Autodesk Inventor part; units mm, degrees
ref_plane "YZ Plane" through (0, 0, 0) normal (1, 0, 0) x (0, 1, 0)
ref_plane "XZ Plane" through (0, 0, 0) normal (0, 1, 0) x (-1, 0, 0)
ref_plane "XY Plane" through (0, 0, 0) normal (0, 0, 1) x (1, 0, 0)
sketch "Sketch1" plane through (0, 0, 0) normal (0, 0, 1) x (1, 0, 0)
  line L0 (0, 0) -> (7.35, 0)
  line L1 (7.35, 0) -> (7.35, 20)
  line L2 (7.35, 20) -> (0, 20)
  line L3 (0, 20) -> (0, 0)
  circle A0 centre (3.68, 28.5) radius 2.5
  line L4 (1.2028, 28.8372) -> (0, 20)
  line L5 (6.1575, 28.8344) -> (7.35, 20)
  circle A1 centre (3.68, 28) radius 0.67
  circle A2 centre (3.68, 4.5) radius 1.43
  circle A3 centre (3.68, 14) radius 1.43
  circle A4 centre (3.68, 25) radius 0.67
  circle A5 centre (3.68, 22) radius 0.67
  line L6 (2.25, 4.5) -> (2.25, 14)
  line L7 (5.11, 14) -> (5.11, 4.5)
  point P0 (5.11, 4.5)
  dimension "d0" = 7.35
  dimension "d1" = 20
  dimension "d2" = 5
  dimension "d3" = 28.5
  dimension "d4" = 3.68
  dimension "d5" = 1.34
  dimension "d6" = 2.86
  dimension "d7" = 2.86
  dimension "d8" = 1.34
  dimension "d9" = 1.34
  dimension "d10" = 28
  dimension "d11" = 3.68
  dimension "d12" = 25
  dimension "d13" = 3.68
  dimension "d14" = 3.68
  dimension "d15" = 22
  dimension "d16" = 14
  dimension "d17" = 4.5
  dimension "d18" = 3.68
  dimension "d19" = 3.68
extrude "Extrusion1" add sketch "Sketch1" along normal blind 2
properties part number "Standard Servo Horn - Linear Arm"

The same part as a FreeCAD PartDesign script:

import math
import FreeCAD as App
import Part
import Sketcher
from FreeCAD import Vector

doc = App.newDocument("Part")
body = doc.addObject("PartDesign::Body", "Body")

# Sketch on XY plane
sketch1 = doc.addObject("Sketcher::SketchObject", "Sketch")
body.addObject(sketch1)
sketch1.AttachmentSupport = (doc.XY_Plane, [""])
sketch1.MapMode = "FlatFace"
sketch1.addGeometry(Part.LineSegment(Vector(0, 20, 0), Vector(0, 0, 0)), False)
sketch1.addGeometry(Part.LineSegment(Vector(0, 0, 0), Vector(7.3, 0, 0)), False)
sketch1.addGeometry(Part.LineSegment(Vector(7.3, 0, 0), Vector(7.3, 20, 0)), False)
sketch1.addGeometry(Part.LineSegment(Vector(7.3, 20, 0), Vector(6.2, 28.8, 0)), False)
sketch1.addGeometry(Part.ArcOfCircle(Part.Circle(Vector(3.7, 28.5, 0), Vector(0, 0, 1), 2.5), math.radians(8), math.radians(172)), False)
sketch1.addGeometry(Part.LineSegment(Vector(1.2, 28.8, 0), Vector(0, 20, 0)), False)
sketch1.addGeometry(Part.LineSegment(Vector(5.1, 14, 0), Vector(5.1, 4.5, 0)), False)
sketch1.addGeometry(Part.ArcOfCircle(Part.Circle(Vector(3.7, 4.5, 0), Vector(0, 0, 1), 1.4), math.radians(180), math.radians(360)), False)
sketch1.addGeometry(Part.LineSegment(Vector(2.2, 4.5, 0), Vector(2.2, 14, 0)), False)
sketch1.addGeometry(Part.ArcOfCircle(Part.Circle(Vector(3.7, 14, 0), Vector(0, 0, 1), 1.4), math.radians(0), math.radians(180)), False)
sketch1.addGeometry(Part.Circle(Vector(3.7, 25, 0), Vector(0, 0, 1), 0.7), False)
sketch1.addGeometry(Part.Circle(Vector(3.7, 22, 0), Vector(0, 0, 1), 0.7), False)
sketch1.addGeometry(Part.Circle(Vector(3.7, 28, 0), Vector(0, 0, 1), 0.7), False)
sketch1.addConstraint(Sketcher.Constraint("Coincident", 0, 2, 1, 1))
sketch1.addConstraint(Sketcher.Constraint("Coincident", 1, 2, 2, 1))
sketch1.addConstraint(Sketcher.Constraint("Coincident", 2, 2, 3, 1))
sketch1.addConstraint(Sketcher.Constraint("Tangent", 3, 2, 4, 1))
sketch1.addConstraint(Sketcher.Constraint("Tangent", 4, 2, 5, 1))
sketch1.addConstraint(Sketcher.Constraint("Coincident", 5, 2, 0, 1))
sketch1.addConstraint(Sketcher.Constraint("Tangent", 6, 2, 7, 2))
sketch1.addConstraint(Sketcher.Constraint("Tangent", 7, 1, 8, 1))
sketch1.addConstraint(Sketcher.Constraint("Tangent", 8, 2, 9, 2))
sketch1.addConstraint(Sketcher.Constraint("Tangent", 9, 1, 6, 1))
sketch1.addConstraint(Sketcher.Constraint("Vertical", 0))
sketch1.addConstraint(Sketcher.Constraint("Horizontal", 1))
sketch1.addConstraint(Sketcher.Constraint("Vertical", 2))
sketch1.addConstraint(Sketcher.Constraint("Vertical", 6))
sketch1.addConstraint(Sketcher.Constraint("Vertical", 8))
sketch1.addConstraint(Sketcher.Constraint("Coincident", 0, 2, -1, 1))
sketch1.addConstraint(Sketcher.Constraint("Equal", 10, 11))
sketch1.addConstraint(Sketcher.Constraint("Equal", 11, 12))
sketch1.addConstraint(Sketcher.Constraint("Horizontal", 2, 2, 5, 2))
sketch1.addConstraint(Sketcher.Constraint("Vertical", 4, 3, 7, 3))
sketch1.addConstraint(Sketcher.Constraint("Vertical", 9, 3, 10, 3))
sketch1.addConstraint(Sketcher.Constraint("Vertical", 10, 3, 11, 3))
sketch1.addConstraint(Sketcher.Constraint("Vertical", 11, 3, 12, 3))
sketch1.addConstraint(Sketcher.Constraint("Radius", 4, 2.5))
sketch1.addConstraint(Sketcher.Constraint("Diameter", 10, 1.34))
sketch1.addConstraint(Sketcher.Constraint("DistanceY", 0, 2, 0, 1, 20.0))
sketch1.addConstraint(Sketcher.Constraint("Radius", 7, 1.43))
sketch1.addConstraint(Sketcher.Constraint("DistanceY", -1, 1, 9, 3, 14.0))
sketch1.addConstraint(Sketcher.Constraint("DistanceY", -1, 1, 10, 3, 25.0))
sketch1.addConstraint(Sketcher.Constraint("DistanceY", -1, 1, 11, 3, 22.0))
sketch1.addConstraint(Sketcher.Constraint("DistanceY", -1, 1, 12, 3, 28.0))
sketch1.addConstraint(Sketcher.Constraint("DistanceX", 1, 1, 1, 2, 7.35))
sketch1.addConstraint(Sketcher.Constraint("DistanceY", -1, 1, 4, 3, 28.5))
sketch1.addConstraint(Sketcher.Constraint("DistanceY", -1, 1, 7, 3, 4.5))
sketch1.addConstraint(Sketcher.Constraint("DistanceX", -1, 1, 4, 3, 3.68))
pad1 = doc.addObject("PartDesign::Pad", "Pad")
body.addObject(pad1)
pad1.Profile = sketch1
pad1.Length = 2

doc.recompute()
